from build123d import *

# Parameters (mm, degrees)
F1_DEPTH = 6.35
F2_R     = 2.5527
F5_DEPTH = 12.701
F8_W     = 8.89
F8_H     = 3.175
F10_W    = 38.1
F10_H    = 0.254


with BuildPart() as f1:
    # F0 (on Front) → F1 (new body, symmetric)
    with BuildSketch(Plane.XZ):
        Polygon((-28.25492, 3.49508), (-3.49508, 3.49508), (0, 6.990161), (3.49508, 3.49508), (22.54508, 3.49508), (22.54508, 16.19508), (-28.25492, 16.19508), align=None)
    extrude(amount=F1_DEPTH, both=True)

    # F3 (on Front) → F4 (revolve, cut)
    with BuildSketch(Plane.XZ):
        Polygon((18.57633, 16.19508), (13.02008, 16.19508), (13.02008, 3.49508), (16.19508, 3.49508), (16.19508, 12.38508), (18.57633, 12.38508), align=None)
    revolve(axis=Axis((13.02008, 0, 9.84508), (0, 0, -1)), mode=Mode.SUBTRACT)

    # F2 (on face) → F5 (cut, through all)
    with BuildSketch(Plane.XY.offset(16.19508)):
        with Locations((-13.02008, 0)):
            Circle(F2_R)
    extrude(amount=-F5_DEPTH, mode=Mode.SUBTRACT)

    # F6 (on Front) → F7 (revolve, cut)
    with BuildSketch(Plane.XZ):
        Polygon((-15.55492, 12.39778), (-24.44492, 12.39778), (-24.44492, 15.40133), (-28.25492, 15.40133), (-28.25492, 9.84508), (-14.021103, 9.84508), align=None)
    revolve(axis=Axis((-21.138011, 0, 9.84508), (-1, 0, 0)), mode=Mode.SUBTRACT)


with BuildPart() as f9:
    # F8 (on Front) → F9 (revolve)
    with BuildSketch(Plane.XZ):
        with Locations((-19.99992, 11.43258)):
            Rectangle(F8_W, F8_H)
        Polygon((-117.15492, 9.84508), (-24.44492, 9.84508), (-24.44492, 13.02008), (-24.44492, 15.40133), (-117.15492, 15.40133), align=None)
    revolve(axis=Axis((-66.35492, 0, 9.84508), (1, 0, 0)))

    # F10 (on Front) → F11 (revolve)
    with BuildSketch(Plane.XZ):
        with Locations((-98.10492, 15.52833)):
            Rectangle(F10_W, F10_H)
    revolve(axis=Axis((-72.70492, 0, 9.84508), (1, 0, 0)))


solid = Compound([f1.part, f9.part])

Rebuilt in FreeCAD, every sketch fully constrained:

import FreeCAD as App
import Part
import Sketcher

V = App.Vector
Q = App.Units.Quantity


def add_polygon(sketch, points):
    """Adds a closed chain of lines whose ends are joined by coincident constraints."""
    first, n = sketch.GeometryCount, len(points)
    for a, b in zip(points, points[1:] + points[:1]):
        sketch.addGeometry(Part.LineSegment(App.Vector(*a, 0), App.Vector(*b, 0)), False)
    for i in range(n):
        sketch.addConstraint(Sketcher.Constraint("Coincident", first + i, 2, first + (i + 1) % n, 1))

doc = App.newDocument("Part")
params = doc.addObject("Spreadsheet::Sheet", "Params")
for row, (alias, value) in enumerate([
    ("sketch1_width", "2 in"),
    ("sketch1_height", "0.5 in"),
    ("sketch1_width2", "0.75 in"),
    ("pad1_length", "0.5 in"),
    ("sketch2_height", "0.5 in"),
    ("sketch2_height2", "0.35 in"),
    ("sketch2_width", "0.21875 in"),
    ("sketch2_width2", "0.125 in"),
    ("groove_angle", "360 deg"),
    ("sketch3_diameter", "0.201 in"),
    ("sketch4_width", "0.35 in"),
    ("sketch4_width2", "0.15 in"),
    ("sketch4_height", "0.21875 in"),
    ("groove2_angle", "360 deg"),
    ("sketch5_width", "4 in"),
    ("sketch5_width2", "0.35 in"),
    ("sketch5_height", "0.125 in"),
    ("sketch5_height2", "0.09375 in"),
    ("revolution_angle", "360 deg"),
    ("sketch6_width", "1.5 in"),
    ("sketch6_height", "0.01 in"),
    ("revolution2_angle", "360 deg"),
], start=1):
    params.set(f"A{row}", alias)
    params.set(f"B{row}", "=" + value)
    params.setAlias(f"B{row}", alias)

body = doc.addObject("PartDesign::Body", "Body")

# Sketch on XZ plane
sketch1 = body.newObject("Sketcher::SketchObject", "Sketch")
sketch1.AttachmentSupport = (doc.getObject("XZ_Plane"), [""])
sketch1.MapMode = "FlatFace"
add_polygon(sketch1, [(-28.3, 3.5), (-3.5, 3.5), (0, 7), (3.5, 3.5), (22.5, 3.5), (22.5, 16.2), (-28.3, 16.2)])  # lines 0-6
sketch1.addConstraint([
    Sketcher.Constraint("Horizontal", 0),
    Sketcher.Constraint("Horizontal", 3),
    Sketcher.Constraint("Vertical", 4),
    Sketcher.Constraint("Horizontal", 5),
    Sketcher.Constraint("Vertical", 6),
    Sketcher.Constraint("Symmetric", 0, 2, 2, 2, -2),
    Sketcher.Constraint("PointOnObject", 1, 2, -2),
    Sketcher.Constraint("Perpendicular", 1, 2),
    Sketcher.Constraint("DistanceX", 5, 2, 5, 1, Q("2 in")),
    Sketcher.Constraint("DistanceY", 4, 1, 4, 2, Q("0.5 in")),
    Sketcher.Constraint("DistanceX", 3, 1, 3, 2, Q("0.75 in")),
    Sketcher.Constraint("DistanceX", 0, 1, 0, 2, 24.75984),
    Sketcher.Constraint("DistanceY", -1, 1, 0, 2, 3.49508),
])
sketch1.setExpression("Constraints[15]", "Params.sketch1_width")
sketch1.setExpression("Constraints[16]", "Params.sketch1_height")
sketch1.setExpression("Constraints[17]", "Params.sketch1_width2")
pad1 = body.newObject("PartDesign::Pad", "Pad")
pad1.Profile = sketch1
pad1.setExpression("Length", "Params.pad1_length")
pad1.Midplane = True

# Sketch on XZ plane
sketch2 = body.newObject("Sketcher::SketchObject", "Sketch001")
sketch2.AttachmentSupport = (doc.getObject("XZ_Plane"), [""])
sketch2.MapMode = "FlatFace"
add_polygon(sketch2, [(18.6, 16.2), (13, 16.2), (13, 3.5), (16.2, 3.5), (16.2, 12.4), (18.6, 12.4)])  # lines 0-5
sketch2.addGeometry(Part.LineSegment(V(13, 16.2, 0), V(13, 3.5, 0)), True)  # axis
sketch2.addConstraint([
    Sketcher.Constraint("Horizontal", 0),
    Sketcher.Constraint("Vertical", 1),
    Sketcher.Constraint("Horizontal", 2),
    Sketcher.Constraint("Vertical", 3),
    Sketcher.Constraint("Horizontal", 4),
    Sketcher.Constraint("Vertical", 5),
    Sketcher.Constraint("Vertical", 6),
    Sketcher.Constraint("Coincident", 6, 1, 0, 2),
    Sketcher.Constraint("Horizontal", 2, 2, 6, 2),
    Sketcher.Constraint("DistanceY", 1, 2, 1, 1, Q("0.5 in")),
    Sketcher.Constraint("DistanceY", 3, 1, 3, 2, Q("0.35 in")),
    Sketcher.Constraint("DistanceX", 0, 2, 0, 1, Q("0.21875 in")),
    Sketcher.Constraint("DistanceX", 2, 1, 2, 2, Q("0.125 in")),
    Sketcher.Constraint("DistanceX", -1, 1, 0, 2, 13.02008),
    Sketcher.Constraint("DistanceY", -1, 1, 0, 2, 16.19508),
])
sketch2.setExpression("Constraints[15]", "Params.sketch2_height")
sketch2.setExpression("Constraints[16]", "Params.sketch2_height2")
sketch2.setExpression("Constraints[17]", "Params.sketch2_width")
sketch2.setExpression("Constraints[18]", "Params.sketch2_width2")
groove = body.newObject("PartDesign::Groove", "Groove")
groove.Profile = sketch2
groove.ReferenceAxis = (sketch2, ["Axis0"])
groove.setExpression("Angle", "Params.groove_angle")

# Sketch on XY plane
sketch3 = body.newObject("Sketcher::SketchObject", "Sketch002")
sketch3.AttachmentSupport = (doc.getObject("XY_Plane"), [""])
sketch3.MapMode = "FlatFace"
sketch3.AttachmentOffset = App.Placement(V(0, 0, 16.19508), App.Rotation())
sketch3.addGeometry(Part.Circle(V(-13, 0, 0), V(0, 0, 1), 2.6), False)
sketch3.addConstraint([
    Sketcher.Constraint("PointOnObject", 0, 3, -1),
    Sketcher.Constraint("Diameter", 0, Q("0.201 in")),
    Sketcher.Constraint("DistanceX", 0, 3, -1, 1, 13.02008),
])
sketch3.setExpression("Constraints[1]", "Params.sketch3_diameter")
pocket1 = body.newObject("PartDesign::Pocket", "Pocket")
pocket1.Profile = sketch3
pocket1.Type = "ThroughAll"

# Sketch on XZ plane
sketch4 = body.newObject("Sketcher::SketchObject", "Sketch003")
sketch4.AttachmentSupport = (doc.getObject("XZ_Plane"), [""])
sketch4.MapMode = "FlatFace"
add_polygon(sketch4, [(-15.6, 12.4), (-24.4, 12.4), (-24.4, 15.4), (-28.3, 15.4), (-28.3, 9.8), (-14, 9.8)])  # lines 0-5
sketch4.addGeometry(Part.LineSegment(V(-14, 9.8, 0), V(-28.3, 9.8, 0)), True)  # axis
sketch4.addConstraint([
    Sketcher.Constraint("Horizontal", 0),
    Sketcher.Constraint("Vertical", 1),
    Sketcher.Constraint("Horizontal", 2),
    Sketcher.Constraint("Vertical", 3),
    Sketcher.Constraint("Horizontal", 4),
    Sketcher.Constraint("Horizontal", 6),
    Sketcher.Constraint("Coincident", 6, 1, 4, 2),
    Sketcher.Constraint("Vertical", 2, 2, 6, 2),
    Sketcher.Constraint("Angle", 5, Q("121.000002 deg")),
    Sketcher.Constraint("DistanceX", 0, 2, 0, 1, Q("0.35 in")),
    Sketcher.Constraint("DistanceX", 2, 2, 2, 1, Q("0.15 in")),
    Sketcher.Constraint("DistanceY", 3, 2, 3, 1, Q("0.21875 in")),
    Sketcher.Constraint("DistanceY", 3, 2, 0, 2, Q("0.1005 in")),
    Sketcher.Constraint("DistanceX", 0, 2, -1, 1, 24.44492),
    Sketcher.Constraint("DistanceY", -1, 1, 0, 2, 12.39778),
])
sketch4.setExpression("Constraints[15]", "Params.sketch4_width")
sketch4.setExpression("Constraints[16]", "Params.sketch4_width2")
sketch4.setExpression("Constraints[17]", "Params.sketch4_height")
groove2 = body.newObject("PartDesign::Groove", "Groove001")
groove2.Profile = sketch4
groove2.ReferenceAxis = (sketch4, ["Axis0"])
groove2.setExpression("Angle", "Params.groove2_angle")
body2 = doc.addObject("PartDesign::Body", "Body001")

# Sketch on XZ plane
sketch5 = body2.newObject("Sketcher::SketchObject", "Sketch004")
sketch5.AttachmentSupport = (doc.getObject("XZ_Plane001"), [""])
sketch5.MapMode = "FlatFace"
add_polygon(sketch5, [(-15.6, 9.8), (-15.6, 13), (-24.4, 13), (-24.4, 15.4), (-117.2, 15.4), (-117.2, 9.8)])  # lines 0-5
sketch5.addGeometry(Part.LineSegment(V(-117.2, 9.8, 0), V(-15.6, 9.8, 0)), True)  # axis
sketch5.addConstraint([
    Sketcher.Constraint("Vertical", 0),
    Sketcher.Constraint("Horizontal", 1),
    Sketcher.Constraint("Vertical", 2),
    Sketcher.Constraint("Horizontal", 3),
    Sketcher.Constraint("Vertical", 4),
    Sketcher.Constraint("Horizontal", 5),
    Sketcher.Constraint("Horizontal", 6),
    Sketcher.Constraint("Coincident", 6, 1, 4, 2),
    Sketcher.Constraint("Vertical", 0, 2, 6, 2),
    Sketcher.Constraint("DistanceX", 5, 1, 5, 2, Q("4 in")),
    Sketcher.Constraint("DistanceX", 1, 2, 1, 1, Q("0.35 in")),
    Sketcher.Constraint("DistanceY", 0, 1, 0, 2, Q("0.125 in")),
    Sketcher.Constraint("DistanceY", 2, 1, 2, 2, Q("0.09375 in")),
    Sketcher.Constraint("DistanceX", 0, 2, -1, 1, 15.55492),
    Sketcher.Constraint("DistanceY", -1, 1, 0, 2, 13.02008),
])
sketch5.setExpression("Constraints[15]", "Params.sketch5_width")
sketch5.setExpression("Constraints[16]", "Params.sketch5_width2")
sketch5.setExpression("Constraints[17]", "Params.sketch5_height")
sketch5.setExpression("Constraints[18]", "Params.sketch5_height2")
revolution = body2.newObject("PartDesign::Revolution", "Revolution")
revolution.Profile = sketch5
revolution.ReferenceAxis = (sketch5, ["Axis0"])
revolution.setExpression("Angle", "Params.revolution_angle")

# Sketch on XZ plane
sketch6 = body2.newObject("Sketcher::SketchObject", "Sketch005")
sketch6.AttachmentSupport = (doc.getObject("XZ_Plane001"), [""])
sketch6.MapMode = "FlatFace"
add_polygon(sketch6, [(-117.15, 15.66), (-117.15, 15.4), (-79.05, 15.4), (-79.05, 15.66)])  # lines 0-3
sketch6.addGeometry(Part.LineSegment(V(-117.15, 9.85, 0), V(-79.05, 9.85, 0)), True)  # axis
sketch6.addConstraint([
    Sketcher.Constraint("Vertical", 0),
    Sketcher.Constraint("Horizontal", 1),
    Sketcher.Constraint("Vertical", 2),
    Sketcher.Constraint("Horizontal", 3),
    Sketcher.Constraint("Horizontal", 4),
    Sketcher.Constraint("Vertical", 3, 2, 4, 1),
    Sketcher.Constraint("Vertical", 2, 2, 4, 2),
    Sketcher.Constraint("DistanceX", 1, 1, 1, 2, Q("1.5 in")),
    Sketcher.Constraint("DistanceY", 0, 2, 0, 1, Q("0.01 in")),
    Sketcher.Constraint("DistanceY", 4, 1, 0, 2, Q("0.21875 in")),
    Sketcher.Constraint("DistanceX", 0, 2, -1, 1, 117.15492),
    Sketcher.Constraint("DistanceY", -1, 1, 0, 2, 15.40133),
])
sketch6.setExpression("Constraints[11]", "Params.sketch6_width")
sketch6.setExpression("Constraints[12]", "Params.sketch6_height")
revolution2 = body2.newObject("PartDesign::Revolution", "Revolution001")
revolution2.Profile = sketch6
revolution2.ReferenceAxis = (sketch6, ["Axis0"])
revolution2.setExpression("Angle", "Params.revolution2_angle")

doc.recompute()
